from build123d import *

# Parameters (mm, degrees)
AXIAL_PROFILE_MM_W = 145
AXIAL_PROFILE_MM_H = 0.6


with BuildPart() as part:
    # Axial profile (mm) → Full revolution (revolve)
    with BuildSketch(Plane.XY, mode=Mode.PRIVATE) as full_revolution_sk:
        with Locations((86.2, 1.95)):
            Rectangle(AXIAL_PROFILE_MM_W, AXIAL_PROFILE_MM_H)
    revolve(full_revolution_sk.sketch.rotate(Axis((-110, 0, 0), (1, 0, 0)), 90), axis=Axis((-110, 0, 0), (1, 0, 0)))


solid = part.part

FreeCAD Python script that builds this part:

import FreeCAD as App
import Part
import Sketcher


def add_polygon(sketch, points):
    """Adds a closed chain of lines whose ends are joined by coincident constraints."""
    first, n = sketch.GeometryCount, len(points)
    for a, b in zip(points, points[1:] + points[:1]):
        sketch.addGeometry(Part.LineSegment(App.Vector(*a, 0), App.Vector(*b, 0)), False)
    for i in range(n):
        sketch.addConstraint(Sketcher.Constraint("Coincident", first + i, 2, first + (i + 1) % n, 1))

doc = App.newDocument("Part")
params = doc.addObject("Spreadsheet::Sheet", "Params")
for row, (alias, value) in enumerate([
    ("sketch1_width", "145 mm"),
    ("sketch1_height", "0.6 mm"),
    ("revolution_angle", "360 deg"),
], start=1):
    params.set(f"A{row}", alias)
    params.set(f"B{row}", "=" + value)
    params.setAlias(f"B{row}", alias)

body = doc.addObject("PartDesign::Body", "Body")

sketch1 = body.newObject("Sketcher::SketchObject", "Sketch")
sketch1.AttachmentSupport = (doc.getObject("XY_Plane"), [""])
sketch1.MapMode = "FlatFace"
add_polygon(sketch1, [(13.7, 2.2), (13.7, 1.6), (158.7, 1.6), (158.7, 2.2)])
sketch1.addConstraint(Sketcher.Constraint("Vertical", 0))
sketch1.addConstraint(Sketcher.Constraint("Horizontal", 1))
sketch1.addConstraint(Sketcher.Constraint("Vertical", 2))
sketch1.addConstraint(Sketcher.Constraint("Horizontal", 3))
sketch1.addConstraint(Sketcher.Constraint("DistanceX", 1, 1, 1, 2, 145.0))
sketch1.addConstraint(Sketcher.Constraint("DistanceY", 0, 2, 0, 1, 0.6))
sketch1.addConstraint(Sketcher.Constraint("DistanceX", -1, 1, 0, 2, 13.7))
sketch1.addConstraint(Sketcher.Constraint("DistanceY", -1, 1, 0, 2, 1.65))
sketch1.setExpression("Constraints[8]", "Params.sketch1_width")
sketch1.setExpression("Constraints[9]", "Params.sketch1_height")
revolution = body.newObject("PartDesign::Revolution", "Revolution")
revolution.Profile = sketch1
revolution.ReferenceAxis = (sketch1, ["H_Axis"])
revolution.setExpression("Angle", "Params.revolution_angle")

doc.recompute()
